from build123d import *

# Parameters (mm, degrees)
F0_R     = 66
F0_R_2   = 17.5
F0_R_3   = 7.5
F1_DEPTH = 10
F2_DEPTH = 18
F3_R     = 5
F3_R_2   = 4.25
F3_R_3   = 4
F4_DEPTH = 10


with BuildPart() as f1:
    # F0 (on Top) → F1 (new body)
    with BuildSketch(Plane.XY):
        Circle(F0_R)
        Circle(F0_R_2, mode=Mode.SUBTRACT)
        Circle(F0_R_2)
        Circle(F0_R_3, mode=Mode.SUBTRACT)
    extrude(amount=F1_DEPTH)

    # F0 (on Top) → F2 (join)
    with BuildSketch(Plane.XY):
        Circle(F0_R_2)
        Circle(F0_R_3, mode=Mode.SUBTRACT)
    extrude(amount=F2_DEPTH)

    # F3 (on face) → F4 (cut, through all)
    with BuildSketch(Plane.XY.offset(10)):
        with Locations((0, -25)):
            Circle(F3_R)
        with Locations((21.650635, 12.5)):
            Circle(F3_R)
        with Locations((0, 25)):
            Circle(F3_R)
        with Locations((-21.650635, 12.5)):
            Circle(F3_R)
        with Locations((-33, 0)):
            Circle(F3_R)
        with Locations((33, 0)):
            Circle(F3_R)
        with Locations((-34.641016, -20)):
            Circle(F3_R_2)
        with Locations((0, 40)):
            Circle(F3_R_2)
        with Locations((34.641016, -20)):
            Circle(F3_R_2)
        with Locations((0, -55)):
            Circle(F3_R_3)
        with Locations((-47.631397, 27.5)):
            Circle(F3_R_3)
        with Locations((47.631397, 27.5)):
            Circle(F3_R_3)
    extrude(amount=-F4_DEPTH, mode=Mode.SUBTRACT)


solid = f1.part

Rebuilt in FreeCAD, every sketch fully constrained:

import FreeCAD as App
import Part
import Sketcher

V = App.Vector

doc = App.newDocument("Part")
params = doc.addObject("Spreadsheet::Sheet", "Params")
for row, (alias, value) in enumerate([
    ("sketch1_diameter", "132 mm"),
    ("sketch1_diameter2", "15 mm"),
    ("pad1_length", "10 mm"),
    ("sketch2_diameter", "35 mm"),
    ("sketch2_diameter2", "15 mm"),
    ("pad2_length", "18 mm"),
    ("sketch3_diameter", "10 mm"),
    ("sketch3_diameter2", "8 mm"),
    ("sketch3_diameter3", "8.5 mm"),
], start=1):
    params.set(f"A{row}", alias)
    params.set(f"B{row}", "=" + value)
    params.setAlias(f"B{row}", alias)

body = doc.addObject("PartDesign::Body", "Body")

sketch1 = body.newObject("Sketcher::SketchObject", "Sketch")
sketch1.AttachmentSupport = (doc.getObject("XY_Plane"), [""])
sketch1.MapMode = "FlatFace"
sketch1.addGeometry([
    Part.Circle(V(0, 0, 0), V(0, 0, 1), 66),
    Part.Circle(V(0, 0, 0), V(0, 0, 1), 8),
], False)
sketch1.addConstraint([
    Sketcher.Constraint("Coincident", 0, 3, -1, 1),
    Sketcher.Constraint("Coincident", 1, 3, -1, 1),
    Sketcher.Constraint("Diameter", 0, 132.0),
    Sketcher.Constraint("Diameter", 1, 15.0),
])
sketch1.setExpression("Constraints[2]", "Params.sketch1_diameter")
sketch1.setExpression("Constraints[3]", "Params.sketch1_diameter2")
pad1 = body.newObject("PartDesign::Pad", "Pad")
pad1.Profile = sketch1
pad1.setExpression("Length", "Params.pad1_length")

sketch2 = body.newObject("Sketcher::SketchObject", "Sketch001")
sketch2.AttachmentSupport = (doc.getObject("XY_Plane"), [""])
sketch2.MapMode = "FlatFace"
sketch2.addGeometry([
    Part.Circle(V(0, 0, 0), V(0, 0, 1), 18),
    Part.Circle(V(0, 0, 0), V(0, 0, 1), 8),
], False)
sketch2.addConstraint([
    Sketcher.Constraint("Coincident", 0, 3, -1, 1),
    Sketcher.Constraint("Coincident", 1, 3, -1, 1),
    Sketcher.Constraint("Diameter", 0, 35.0),
    Sketcher.Constraint("Diameter", 1, 15.0),
])
sketch2.setExpression("Constraints[2]", "Params.sketch2_diameter")
sketch2.setExpression("Constraints[3]", "Params.sketch2_diameter2")
pad2 = body.newObject("PartDesign::Pad", "Pad001")
pad2.Profile = sketch2
pad2.setExpression("Length", "Params.pad2_length")

sketch3 = body.newObject("Sketcher::SketchObject", "Sketch002")
sketch3.AttachmentSupport = (doc.getObject("XY_Plane"), [""])
sketch3.MapMode = "FlatFace"
sketch3.AttachmentOffset = App.Placement(V(0, 0, 10), App.Rotation())
sketch3.addGeometry([
    Part.Circle(V(0, -25, 0), V(0, 0, 1), 5),
    Part.Circle(V(21.7, 12.5, 0), V(0, 0, 1), 5),
    Part.Circle(V(0, 25, 0), V(0, 0, 1), 5),
    Part.Circle(V(-21.7, 12.5, 0), V(0, 0, 1), 5),
    Part.Circle(V(-33, 0, 0), V(0, 0, 1), 5),
    Part.Circle(V(33, 0, 0), V(0, 0, 1), 5),
    Part.Circle(V(-34.6, -20, 0), V(0, 0, 1), 4.2),
    Part.Circle(V(0, 40, 0), V(0, 0, 1), 4.2),
    Part.Circle(V(34.6, -20, 0), V(0, 0, 1), 4.2),
    Part.Circle(V(0, -55, 0), V(0, 0, 1), 4),
    Part.Circle(V(-47.6, 27.5, 0), V(0, 0, 1), 4),
    Part.Circle(V(47.6, 27.5, 0), V(0, 0, 1), 4),
], False)
sketch3.addConstraint([
    Sketcher.Constraint("Equal", 0, 1),
    Sketcher.Constraint("Equal", 1, 2),
    Sketcher.Constraint("Equal", 2, 3),
    Sketcher.Constraint("Equal", 3, 4),
    Sketcher.Constraint("Equal", 4, 5),
    Sketcher.Constraint("Equal", 6, 7),
    Sketcher.Constraint("Equal", 7, 8),
    Sketcher.Constraint("Equal", 9, 10),
    Sketcher.Constraint("Equal", 10, 11),
    Sketcher.Constraint("Symmetric", 0, 3, 2, 3, -1, 1),
    Sketcher.Constraint("Symmetric", 4, 3, 5, 3, -1, 1),
    Sketcher.Constraint("Symmetric", 1, 3, 3, 3, -2),
    Sketcher.Constraint("Symmetric", 6, 3, 8, 3, -2),
    Sketcher.Constraint("Symmetric", 10, 3, 11, 3, -2),
    Sketcher.Constraint("PointOnObject", 0, 3, -2),
    Sketcher.Constraint("PointOnObject", 4, 3, -1),
    Sketcher.Constraint("PointOnObject", 7, 3, -2),
    Sketcher.Constraint("PointOnObject", 9, 3, -2),
    Sketcher.Constraint("Diameter", 0, 10.0),
    Sketcher.Constraint("Diameter", 9, 8.0),
    Sketcher.Constraint("Diameter", 6, 8.5),
    Sketcher.Constraint("DistanceY", 0, 3, -1, 1, 25.0),
    Sketcher.Constraint("DistanceX", 4, 3, -1, 1, 33.0),
    Sketcher.Constraint("DistanceY", 6, 3, -1, 1, 20.0),
    Sketcher.Constraint("DistanceY", -1, 1, 7, 3, 40.0),
    Sketcher.Constraint("DistanceY", 9, 3, -1, 1, 55.0),
    Sketcher.Constraint("DistanceY", 3, 3, 10, 3, 15.0),
    Sketcher.Constraint("DistanceY", -1, 1, 1, 3, 12.5),
    Sketcher.Constraint("DistanceX", 3, 3, 1, 3, 43.30127),
    Sketcher.Constraint("DistanceX", 6, 3, 3, 3, 12.990381),
    Sketcher.Constraint("DistanceX", 10, 3, 3, 3, 25.980762),
])
sketch3.setExpression("Constraints[18]", "Params.sketch3_diameter")
sketch3.setExpression("Constraints[19]", "Params.sketch3_diameter2")
sketch3.setExpression("Constraints[20]", "Params.sketch3_diameter3")
pocket1 = body.newObject("PartDesign::Pocket", "Pocket")
pocket1.Profile = sketch3
pocket1.Type = "ThroughAll"

doc.recompute()
